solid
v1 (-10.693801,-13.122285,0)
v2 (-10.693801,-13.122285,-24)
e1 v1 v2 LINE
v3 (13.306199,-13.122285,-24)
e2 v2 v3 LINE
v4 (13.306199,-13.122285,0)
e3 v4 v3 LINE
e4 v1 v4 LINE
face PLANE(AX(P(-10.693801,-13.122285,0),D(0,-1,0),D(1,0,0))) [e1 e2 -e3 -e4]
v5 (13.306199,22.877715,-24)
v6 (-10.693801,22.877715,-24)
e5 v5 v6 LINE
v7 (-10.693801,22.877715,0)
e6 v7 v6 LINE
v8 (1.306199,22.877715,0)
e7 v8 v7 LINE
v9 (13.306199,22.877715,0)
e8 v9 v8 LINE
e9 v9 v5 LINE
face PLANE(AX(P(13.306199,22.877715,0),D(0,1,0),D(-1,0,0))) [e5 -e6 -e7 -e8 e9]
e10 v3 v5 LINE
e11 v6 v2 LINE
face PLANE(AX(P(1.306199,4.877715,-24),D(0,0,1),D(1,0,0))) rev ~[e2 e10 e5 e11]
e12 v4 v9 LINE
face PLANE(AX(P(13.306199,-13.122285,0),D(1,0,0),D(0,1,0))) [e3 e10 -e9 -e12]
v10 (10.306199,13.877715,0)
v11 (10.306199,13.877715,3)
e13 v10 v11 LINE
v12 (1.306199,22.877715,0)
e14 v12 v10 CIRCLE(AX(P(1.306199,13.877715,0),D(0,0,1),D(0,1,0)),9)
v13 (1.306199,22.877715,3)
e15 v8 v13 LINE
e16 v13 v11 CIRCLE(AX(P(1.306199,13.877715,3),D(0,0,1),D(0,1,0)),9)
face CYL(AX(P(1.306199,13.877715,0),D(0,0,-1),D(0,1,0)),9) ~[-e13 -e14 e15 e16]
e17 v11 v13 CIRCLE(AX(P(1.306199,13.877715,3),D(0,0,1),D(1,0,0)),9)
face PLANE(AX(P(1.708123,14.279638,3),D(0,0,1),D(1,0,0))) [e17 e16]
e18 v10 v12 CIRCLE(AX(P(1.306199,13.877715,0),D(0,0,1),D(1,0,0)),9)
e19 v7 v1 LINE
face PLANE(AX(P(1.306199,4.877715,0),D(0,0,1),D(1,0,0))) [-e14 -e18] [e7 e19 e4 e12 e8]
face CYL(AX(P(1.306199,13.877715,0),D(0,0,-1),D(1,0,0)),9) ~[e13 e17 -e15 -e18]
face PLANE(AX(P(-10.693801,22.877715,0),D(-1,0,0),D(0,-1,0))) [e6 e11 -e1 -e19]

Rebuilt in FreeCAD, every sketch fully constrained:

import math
import FreeCAD as App
import Part
import Sketcher
from FreeCAD import Vector
Q = App.Units.Quantity


def add_polygon(sketch, points):
    """Adds a closed chain of lines whose ends are joined by coincident constraints."""
    first, n = sketch.GeometryCount, len(points)
    for a, b in zip(points, points[1:] + points[:1]):
        sketch.addGeometry(Part.LineSegment(App.Vector(*a, 0), App.Vector(*b, 0)), False)
    for i in range(n):
        sketch.addConstraint(Sketcher.Constraint("Coincident", first + i, 2, first + (i + 1) % n, 1))

doc = App.newDocument("Part")
body = doc.addObject("PartDesign::Body", "Body")

# Sketch on XY plane
sketch1 = body.newObject("Sketcher::SketchObject", "Sketch")
sketch1.AttachmentSupport = (doc.getObject("XY_Plane"), [""])
sketch1.MapMode = "FlatFace"
add_polygon(sketch1, [(13, 23), (-11, 23), (-11, -13), (13, -13)])  # lines 0-3
sketch1.addConstraint(Sketcher.Constraint("Horizontal", 0))
sketch1.addConstraint(Sketcher.Constraint("Vertical", 1))
sketch1.addConstraint(Sketcher.Constraint("Horizontal", 2))
sketch1.addConstraint(Sketcher.Constraint("Vertical", 3))
sketch1.addConstraint(Sketcher.Constraint("DistanceX", 0, 2, 0, 1, Q("24 mm")))
sketch1.addConstraint(Sketcher.Constraint("DistanceY", 1, 2, 1, 1, Q("36 mm")))
sketch1.addConstraint(Sketcher.Constraint("DistanceX", 0, 2, -1, 1, Q("10.693801 mm")))
sketch1.addConstraint(Sketcher.Constraint("DistanceY", -1, 1, 0, 2, Q("22.877715 mm")))
pad1 = body.newObject("PartDesign::Pad", "Pad")
pad1.Profile = sketch1
pad1.Length = 24
pad1.Reversed = True

# Sketch on XY plane
sketch2 = body.newObject("Sketcher::SketchObject", "Sketch001")
sketch2.AttachmentSupport = (doc.getObject("XY_Plane"), [""])
sketch2.MapMode = "FlatFace"
sketch2.addGeometry(Part.ArcOfCircle(Part.Circle(Vector(1, 14, 0), Vector(0, 0, 1), 9), math.radians(0), math.radians(90)), False)
sketch2.addGeometry(Part.ArcOfCircle(Part.Circle(Vector(1, 14, 0), Vector(0, 0, 1), 9), math.radians(90), math.radians(360)), False)
sketch2.addConstraint(Sketcher.Constraint("Tangent", 0, 1, 1, 2))
sketch2.addConstraint(Sketcher.Constraint("Coincident", 1, 1, 0, 2))
sketch2.addConstraint(Sketcher.Constraint("Horizontal", 1, 3, 0, 1))
sketch2.addConstraint(Sketcher.Constraint("Vertical", 0, 3, 1, 1))
sketch2.addConstraint(Sketcher.Constraint("Radius", 0, Q("9 mm")))
sketch2.addConstraint(Sketcher.Constraint("DistanceX", -1, 1, 0, 3, Q("1.306199 mm")))
sketch2.addConstraint(Sketcher.Constraint("DistanceY", -1, 1, 0, 3, Q("13.877715 mm")))
pad2 = body.newObject("PartDesign::Pad", "Pad001")
pad2.Profile = sketch2
pad2.Length = 3

doc.recompute()
